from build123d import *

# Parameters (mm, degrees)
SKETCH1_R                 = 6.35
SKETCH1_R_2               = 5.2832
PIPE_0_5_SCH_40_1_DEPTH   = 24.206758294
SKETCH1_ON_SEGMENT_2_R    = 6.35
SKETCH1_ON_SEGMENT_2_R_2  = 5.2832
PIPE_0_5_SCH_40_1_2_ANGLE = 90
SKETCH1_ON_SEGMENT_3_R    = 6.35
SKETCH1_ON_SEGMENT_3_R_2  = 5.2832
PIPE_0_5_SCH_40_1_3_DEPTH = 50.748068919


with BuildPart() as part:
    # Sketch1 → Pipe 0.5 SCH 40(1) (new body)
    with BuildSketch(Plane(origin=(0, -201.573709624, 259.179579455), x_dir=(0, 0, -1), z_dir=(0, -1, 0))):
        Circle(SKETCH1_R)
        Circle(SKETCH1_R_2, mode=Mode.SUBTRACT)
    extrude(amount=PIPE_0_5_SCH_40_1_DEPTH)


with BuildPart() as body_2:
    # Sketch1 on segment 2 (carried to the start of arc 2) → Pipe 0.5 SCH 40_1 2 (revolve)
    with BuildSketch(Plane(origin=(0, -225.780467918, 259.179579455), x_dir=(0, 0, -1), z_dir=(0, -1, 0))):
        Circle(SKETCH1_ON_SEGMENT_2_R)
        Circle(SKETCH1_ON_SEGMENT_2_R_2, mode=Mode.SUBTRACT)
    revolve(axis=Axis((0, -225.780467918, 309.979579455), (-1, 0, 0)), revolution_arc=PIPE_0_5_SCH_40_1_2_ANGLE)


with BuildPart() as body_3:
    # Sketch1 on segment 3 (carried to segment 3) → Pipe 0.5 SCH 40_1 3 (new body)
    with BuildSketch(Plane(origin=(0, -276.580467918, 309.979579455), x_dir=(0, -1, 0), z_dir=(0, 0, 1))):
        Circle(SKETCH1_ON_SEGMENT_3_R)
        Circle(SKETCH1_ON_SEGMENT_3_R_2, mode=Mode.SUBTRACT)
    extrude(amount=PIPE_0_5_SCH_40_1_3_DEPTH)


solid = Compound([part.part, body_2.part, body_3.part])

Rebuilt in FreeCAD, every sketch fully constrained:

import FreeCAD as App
import Part
import Sketcher

V = App.Vector
Q = App.Units.Quantity

doc = App.newDocument("Part")
body = doc.addObject("PartDesign::Body", "Body")

# Sketch on XZ plane
sketch1 = doc.addObject("Sketcher::SketchObject", "Sketch")
body.addObject(sketch1)
sketch1.AttachmentSupport = (doc.XZ_Plane, [""])
sketch1.MapMode = "FlatFace"
sketch1.AttachmentOffset = App.Placement(V(0, 0, 201.57371), App.Rotation())
sketch1.addGeometry([
    Part.Circle(V(0, 259, 0), V(0, 0, 1), 6),
    Part.Circle(V(0, 259, 0), V(0, 0, 1), 5),
], False)
sketch1.addConstraint([
    Sketcher.Constraint("Coincident", 1, 3, 0, 3),
    Sketcher.Constraint("PointOnObject", 0, 3, -2),
    Sketcher.Constraint("Diameter", 0, Q("0.5 in")),
    Sketcher.Constraint("Diameter", 1, Q("0.416 in")),
    Sketcher.Constraint("DistanceY", -1, 1, 0, 3, Q("259.179579 mm")),
])
pad1 = doc.addObject("PartDesign::Pad", "Pad")
body.addObject(pad1)
pad1.Profile = sketch1
pad1.Length = 24.206758
body2 = doc.addObject("PartDesign::Body", "Body001")

# Sketch on XZ plane
sketch2 = doc.addObject("Sketcher::SketchObject", "Sketch001")
body2.addObject(sketch2)
sketch2.AttachmentSupport = (doc.getObject("XZ_Plane001"), [""])
sketch2.MapMode = "FlatFace"
sketch2.AttachmentOffset = App.Placement(V(0, 0, 225.780468), App.Rotation())
sketch2.addGeometry([
    Part.Circle(V(0, 259, 0), V(0, 0, 1), 6),
    Part.Circle(V(0, 259, 0), V(0, 0, 1), 5),
], False)
sketch2.addGeometry(Part.LineSegment(V(0, 310, 0), V(-10, 310, 0)), True)  # axis
sketch2.addConstraint([
    Sketcher.Constraint("Horizontal", 2),
    Sketcher.Constraint("Coincident", 1, 3, 0, 3),
    Sketcher.Constraint("PointOnObject", 0, 3, -2),
    Sketcher.Constraint("PointOnObject", 2, 1, -2),
    Sketcher.Constraint("Diameter", 0, Q("0.5 in")),
    Sketcher.Constraint("Diameter", 1, Q("0.416 in")),
    Sketcher.Constraint("DistanceY", 0, 3, 2, 1, Q("2 in")),
    Sketcher.Constraint("DistanceX", 2, 2, 2, 1, Q("10 mm")),
    Sketcher.Constraint("DistanceY", -1, 1, 0, 3, Q("259.179579 mm")),
])
revolution = doc.addObject("PartDesign::Revolution", "Revolution")
body2.addObject(revolution)
revolution.Profile = sketch2
revolution.ReferenceAxis = (sketch2, ["Axis0"])
revolution.Angle = 90
body3 = doc.addObject("PartDesign::Body", "Body002")

# Sketch on XY plane
sketch3 = doc.addObject("Sketcher::SketchObject", "Sketch002")
body3.addObject(sketch3)
sketch3.AttachmentSupport = (doc.getObject("XY_Plane002"), [""])
sketch3.MapMode = "FlatFace"
sketch3.AttachmentOffset = App.Placement(V(0, 0, 309.979579), App.Rotation())
sketch3.addGeometry([
    Part.Circle(V(0, -277, 0), V(0, 0, 1), 6),
    Part.Circle(V(0, -277, 0), V(0, 0, 1), 5),
], False)
sketch3.addConstraint([
    Sketcher.Constraint("Coincident", 1, 3, 0, 3),
    Sketcher.Constraint("PointOnObject", 0, 3, -2),
    Sketcher.Constraint("Diameter", 0, Q("0.5 in")),
    Sketcher.Constraint("Diameter", 1, Q("0.416 in")),
    Sketcher.Constraint("DistanceY", 0, 3, -1, 1, Q("276.580468 mm")),
])
pad2 = doc.addObject("PartDesign::Pad", "Pad001")
body3.addObject(pad2)
pad2.Profile = sketch3
pad2.Length = 50.748069

doc.recompute()
